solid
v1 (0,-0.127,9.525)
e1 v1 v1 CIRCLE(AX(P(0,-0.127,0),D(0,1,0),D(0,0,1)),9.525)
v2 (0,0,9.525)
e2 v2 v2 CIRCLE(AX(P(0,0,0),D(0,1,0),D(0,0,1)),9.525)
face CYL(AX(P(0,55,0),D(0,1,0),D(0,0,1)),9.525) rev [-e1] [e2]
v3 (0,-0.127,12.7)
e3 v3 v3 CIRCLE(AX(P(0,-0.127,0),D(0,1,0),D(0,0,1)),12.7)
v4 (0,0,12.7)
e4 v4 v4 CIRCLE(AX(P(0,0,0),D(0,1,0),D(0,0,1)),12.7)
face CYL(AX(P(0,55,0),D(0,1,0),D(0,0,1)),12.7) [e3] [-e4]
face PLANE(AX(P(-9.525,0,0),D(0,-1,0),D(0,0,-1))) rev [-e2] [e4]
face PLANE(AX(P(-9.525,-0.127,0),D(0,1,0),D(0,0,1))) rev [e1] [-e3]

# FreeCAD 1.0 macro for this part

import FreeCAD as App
import Part
import Sketcher
from FreeCAD import Vector
Q = App.Units.Quantity

doc = App.newDocument("Part")
body = doc.addObject("PartDesign::Body", "Body")

# Sketch on XY plane
sketch1 = doc.addObject("Sketcher::SketchObject", "Sketch")
body.addObject(sketch1)
sketch1.AttachmentSupport = (doc.XY_Plane, [""])
sketch1.MapMode = "FlatFace"
sketch1.addGeometry(Part.LineSegment(Vector(-12.7, -0.127, 0), Vector(-12.7, 0, 0)), False)
sketch1.addGeometry(Part.LineSegment(Vector(-12.7, 0, 0), Vector(-9.525, 0, 0)), False)
sketch1.addGeometry(Part.LineSegment(Vector(-9.525, 0, 0), Vector(-9.525, -0.127, 0)), False)
sketch1.addGeometry(Part.LineSegment(Vector(-9.525, -0.127, 0), Vector(-12.7, -0.127, 0)), False)
sketch1.addConstraint(Sketcher.Constraint("Coincident", 0, 2, 1, 1))
sketch1.addConstraint(Sketcher.Constraint("Coincident", 1, 2, 2, 1))
sketch1.addConstraint(Sketcher.Constraint("Coincident", 2, 2, 3, 1))
sketch1.addConstraint(Sketcher.Constraint("Coincident", 3, 2, 0, 1))
sketch1.addConstraint(Sketcher.Constraint("Vertical", 0))
sketch1.addConstraint(Sketcher.Constraint("Horizontal", 1))
sketch1.addConstraint(Sketcher.Constraint("Vertical", 2))
sketch1.addConstraint(Sketcher.Constraint("Horizontal", 3))
sketch1.addConstraint(Sketcher.Constraint("PointOnObject", 0, 2, -1))
sketch1.addConstraint(Sketcher.Constraint("DistanceX", 0, 2, -1, 1, Q("0.5 in")))
sketch1.addConstraint(Sketcher.Constraint("DistanceX", 1, 1, 1, 2, Q("0.125 in")))
sketch1.addConstraint(Sketcher.Constraint("DistanceY", 0, 1, 0, 2, Q("0.005 in")))
revolution = doc.addObject("PartDesign::Revolution", "Revolution")
body.addObject(revolution)
revolution.Profile = sketch1
revolution.ReferenceAxis = (sketch1, ["V_Axis"])
revolution.Angle = 360

doc.recompute()
